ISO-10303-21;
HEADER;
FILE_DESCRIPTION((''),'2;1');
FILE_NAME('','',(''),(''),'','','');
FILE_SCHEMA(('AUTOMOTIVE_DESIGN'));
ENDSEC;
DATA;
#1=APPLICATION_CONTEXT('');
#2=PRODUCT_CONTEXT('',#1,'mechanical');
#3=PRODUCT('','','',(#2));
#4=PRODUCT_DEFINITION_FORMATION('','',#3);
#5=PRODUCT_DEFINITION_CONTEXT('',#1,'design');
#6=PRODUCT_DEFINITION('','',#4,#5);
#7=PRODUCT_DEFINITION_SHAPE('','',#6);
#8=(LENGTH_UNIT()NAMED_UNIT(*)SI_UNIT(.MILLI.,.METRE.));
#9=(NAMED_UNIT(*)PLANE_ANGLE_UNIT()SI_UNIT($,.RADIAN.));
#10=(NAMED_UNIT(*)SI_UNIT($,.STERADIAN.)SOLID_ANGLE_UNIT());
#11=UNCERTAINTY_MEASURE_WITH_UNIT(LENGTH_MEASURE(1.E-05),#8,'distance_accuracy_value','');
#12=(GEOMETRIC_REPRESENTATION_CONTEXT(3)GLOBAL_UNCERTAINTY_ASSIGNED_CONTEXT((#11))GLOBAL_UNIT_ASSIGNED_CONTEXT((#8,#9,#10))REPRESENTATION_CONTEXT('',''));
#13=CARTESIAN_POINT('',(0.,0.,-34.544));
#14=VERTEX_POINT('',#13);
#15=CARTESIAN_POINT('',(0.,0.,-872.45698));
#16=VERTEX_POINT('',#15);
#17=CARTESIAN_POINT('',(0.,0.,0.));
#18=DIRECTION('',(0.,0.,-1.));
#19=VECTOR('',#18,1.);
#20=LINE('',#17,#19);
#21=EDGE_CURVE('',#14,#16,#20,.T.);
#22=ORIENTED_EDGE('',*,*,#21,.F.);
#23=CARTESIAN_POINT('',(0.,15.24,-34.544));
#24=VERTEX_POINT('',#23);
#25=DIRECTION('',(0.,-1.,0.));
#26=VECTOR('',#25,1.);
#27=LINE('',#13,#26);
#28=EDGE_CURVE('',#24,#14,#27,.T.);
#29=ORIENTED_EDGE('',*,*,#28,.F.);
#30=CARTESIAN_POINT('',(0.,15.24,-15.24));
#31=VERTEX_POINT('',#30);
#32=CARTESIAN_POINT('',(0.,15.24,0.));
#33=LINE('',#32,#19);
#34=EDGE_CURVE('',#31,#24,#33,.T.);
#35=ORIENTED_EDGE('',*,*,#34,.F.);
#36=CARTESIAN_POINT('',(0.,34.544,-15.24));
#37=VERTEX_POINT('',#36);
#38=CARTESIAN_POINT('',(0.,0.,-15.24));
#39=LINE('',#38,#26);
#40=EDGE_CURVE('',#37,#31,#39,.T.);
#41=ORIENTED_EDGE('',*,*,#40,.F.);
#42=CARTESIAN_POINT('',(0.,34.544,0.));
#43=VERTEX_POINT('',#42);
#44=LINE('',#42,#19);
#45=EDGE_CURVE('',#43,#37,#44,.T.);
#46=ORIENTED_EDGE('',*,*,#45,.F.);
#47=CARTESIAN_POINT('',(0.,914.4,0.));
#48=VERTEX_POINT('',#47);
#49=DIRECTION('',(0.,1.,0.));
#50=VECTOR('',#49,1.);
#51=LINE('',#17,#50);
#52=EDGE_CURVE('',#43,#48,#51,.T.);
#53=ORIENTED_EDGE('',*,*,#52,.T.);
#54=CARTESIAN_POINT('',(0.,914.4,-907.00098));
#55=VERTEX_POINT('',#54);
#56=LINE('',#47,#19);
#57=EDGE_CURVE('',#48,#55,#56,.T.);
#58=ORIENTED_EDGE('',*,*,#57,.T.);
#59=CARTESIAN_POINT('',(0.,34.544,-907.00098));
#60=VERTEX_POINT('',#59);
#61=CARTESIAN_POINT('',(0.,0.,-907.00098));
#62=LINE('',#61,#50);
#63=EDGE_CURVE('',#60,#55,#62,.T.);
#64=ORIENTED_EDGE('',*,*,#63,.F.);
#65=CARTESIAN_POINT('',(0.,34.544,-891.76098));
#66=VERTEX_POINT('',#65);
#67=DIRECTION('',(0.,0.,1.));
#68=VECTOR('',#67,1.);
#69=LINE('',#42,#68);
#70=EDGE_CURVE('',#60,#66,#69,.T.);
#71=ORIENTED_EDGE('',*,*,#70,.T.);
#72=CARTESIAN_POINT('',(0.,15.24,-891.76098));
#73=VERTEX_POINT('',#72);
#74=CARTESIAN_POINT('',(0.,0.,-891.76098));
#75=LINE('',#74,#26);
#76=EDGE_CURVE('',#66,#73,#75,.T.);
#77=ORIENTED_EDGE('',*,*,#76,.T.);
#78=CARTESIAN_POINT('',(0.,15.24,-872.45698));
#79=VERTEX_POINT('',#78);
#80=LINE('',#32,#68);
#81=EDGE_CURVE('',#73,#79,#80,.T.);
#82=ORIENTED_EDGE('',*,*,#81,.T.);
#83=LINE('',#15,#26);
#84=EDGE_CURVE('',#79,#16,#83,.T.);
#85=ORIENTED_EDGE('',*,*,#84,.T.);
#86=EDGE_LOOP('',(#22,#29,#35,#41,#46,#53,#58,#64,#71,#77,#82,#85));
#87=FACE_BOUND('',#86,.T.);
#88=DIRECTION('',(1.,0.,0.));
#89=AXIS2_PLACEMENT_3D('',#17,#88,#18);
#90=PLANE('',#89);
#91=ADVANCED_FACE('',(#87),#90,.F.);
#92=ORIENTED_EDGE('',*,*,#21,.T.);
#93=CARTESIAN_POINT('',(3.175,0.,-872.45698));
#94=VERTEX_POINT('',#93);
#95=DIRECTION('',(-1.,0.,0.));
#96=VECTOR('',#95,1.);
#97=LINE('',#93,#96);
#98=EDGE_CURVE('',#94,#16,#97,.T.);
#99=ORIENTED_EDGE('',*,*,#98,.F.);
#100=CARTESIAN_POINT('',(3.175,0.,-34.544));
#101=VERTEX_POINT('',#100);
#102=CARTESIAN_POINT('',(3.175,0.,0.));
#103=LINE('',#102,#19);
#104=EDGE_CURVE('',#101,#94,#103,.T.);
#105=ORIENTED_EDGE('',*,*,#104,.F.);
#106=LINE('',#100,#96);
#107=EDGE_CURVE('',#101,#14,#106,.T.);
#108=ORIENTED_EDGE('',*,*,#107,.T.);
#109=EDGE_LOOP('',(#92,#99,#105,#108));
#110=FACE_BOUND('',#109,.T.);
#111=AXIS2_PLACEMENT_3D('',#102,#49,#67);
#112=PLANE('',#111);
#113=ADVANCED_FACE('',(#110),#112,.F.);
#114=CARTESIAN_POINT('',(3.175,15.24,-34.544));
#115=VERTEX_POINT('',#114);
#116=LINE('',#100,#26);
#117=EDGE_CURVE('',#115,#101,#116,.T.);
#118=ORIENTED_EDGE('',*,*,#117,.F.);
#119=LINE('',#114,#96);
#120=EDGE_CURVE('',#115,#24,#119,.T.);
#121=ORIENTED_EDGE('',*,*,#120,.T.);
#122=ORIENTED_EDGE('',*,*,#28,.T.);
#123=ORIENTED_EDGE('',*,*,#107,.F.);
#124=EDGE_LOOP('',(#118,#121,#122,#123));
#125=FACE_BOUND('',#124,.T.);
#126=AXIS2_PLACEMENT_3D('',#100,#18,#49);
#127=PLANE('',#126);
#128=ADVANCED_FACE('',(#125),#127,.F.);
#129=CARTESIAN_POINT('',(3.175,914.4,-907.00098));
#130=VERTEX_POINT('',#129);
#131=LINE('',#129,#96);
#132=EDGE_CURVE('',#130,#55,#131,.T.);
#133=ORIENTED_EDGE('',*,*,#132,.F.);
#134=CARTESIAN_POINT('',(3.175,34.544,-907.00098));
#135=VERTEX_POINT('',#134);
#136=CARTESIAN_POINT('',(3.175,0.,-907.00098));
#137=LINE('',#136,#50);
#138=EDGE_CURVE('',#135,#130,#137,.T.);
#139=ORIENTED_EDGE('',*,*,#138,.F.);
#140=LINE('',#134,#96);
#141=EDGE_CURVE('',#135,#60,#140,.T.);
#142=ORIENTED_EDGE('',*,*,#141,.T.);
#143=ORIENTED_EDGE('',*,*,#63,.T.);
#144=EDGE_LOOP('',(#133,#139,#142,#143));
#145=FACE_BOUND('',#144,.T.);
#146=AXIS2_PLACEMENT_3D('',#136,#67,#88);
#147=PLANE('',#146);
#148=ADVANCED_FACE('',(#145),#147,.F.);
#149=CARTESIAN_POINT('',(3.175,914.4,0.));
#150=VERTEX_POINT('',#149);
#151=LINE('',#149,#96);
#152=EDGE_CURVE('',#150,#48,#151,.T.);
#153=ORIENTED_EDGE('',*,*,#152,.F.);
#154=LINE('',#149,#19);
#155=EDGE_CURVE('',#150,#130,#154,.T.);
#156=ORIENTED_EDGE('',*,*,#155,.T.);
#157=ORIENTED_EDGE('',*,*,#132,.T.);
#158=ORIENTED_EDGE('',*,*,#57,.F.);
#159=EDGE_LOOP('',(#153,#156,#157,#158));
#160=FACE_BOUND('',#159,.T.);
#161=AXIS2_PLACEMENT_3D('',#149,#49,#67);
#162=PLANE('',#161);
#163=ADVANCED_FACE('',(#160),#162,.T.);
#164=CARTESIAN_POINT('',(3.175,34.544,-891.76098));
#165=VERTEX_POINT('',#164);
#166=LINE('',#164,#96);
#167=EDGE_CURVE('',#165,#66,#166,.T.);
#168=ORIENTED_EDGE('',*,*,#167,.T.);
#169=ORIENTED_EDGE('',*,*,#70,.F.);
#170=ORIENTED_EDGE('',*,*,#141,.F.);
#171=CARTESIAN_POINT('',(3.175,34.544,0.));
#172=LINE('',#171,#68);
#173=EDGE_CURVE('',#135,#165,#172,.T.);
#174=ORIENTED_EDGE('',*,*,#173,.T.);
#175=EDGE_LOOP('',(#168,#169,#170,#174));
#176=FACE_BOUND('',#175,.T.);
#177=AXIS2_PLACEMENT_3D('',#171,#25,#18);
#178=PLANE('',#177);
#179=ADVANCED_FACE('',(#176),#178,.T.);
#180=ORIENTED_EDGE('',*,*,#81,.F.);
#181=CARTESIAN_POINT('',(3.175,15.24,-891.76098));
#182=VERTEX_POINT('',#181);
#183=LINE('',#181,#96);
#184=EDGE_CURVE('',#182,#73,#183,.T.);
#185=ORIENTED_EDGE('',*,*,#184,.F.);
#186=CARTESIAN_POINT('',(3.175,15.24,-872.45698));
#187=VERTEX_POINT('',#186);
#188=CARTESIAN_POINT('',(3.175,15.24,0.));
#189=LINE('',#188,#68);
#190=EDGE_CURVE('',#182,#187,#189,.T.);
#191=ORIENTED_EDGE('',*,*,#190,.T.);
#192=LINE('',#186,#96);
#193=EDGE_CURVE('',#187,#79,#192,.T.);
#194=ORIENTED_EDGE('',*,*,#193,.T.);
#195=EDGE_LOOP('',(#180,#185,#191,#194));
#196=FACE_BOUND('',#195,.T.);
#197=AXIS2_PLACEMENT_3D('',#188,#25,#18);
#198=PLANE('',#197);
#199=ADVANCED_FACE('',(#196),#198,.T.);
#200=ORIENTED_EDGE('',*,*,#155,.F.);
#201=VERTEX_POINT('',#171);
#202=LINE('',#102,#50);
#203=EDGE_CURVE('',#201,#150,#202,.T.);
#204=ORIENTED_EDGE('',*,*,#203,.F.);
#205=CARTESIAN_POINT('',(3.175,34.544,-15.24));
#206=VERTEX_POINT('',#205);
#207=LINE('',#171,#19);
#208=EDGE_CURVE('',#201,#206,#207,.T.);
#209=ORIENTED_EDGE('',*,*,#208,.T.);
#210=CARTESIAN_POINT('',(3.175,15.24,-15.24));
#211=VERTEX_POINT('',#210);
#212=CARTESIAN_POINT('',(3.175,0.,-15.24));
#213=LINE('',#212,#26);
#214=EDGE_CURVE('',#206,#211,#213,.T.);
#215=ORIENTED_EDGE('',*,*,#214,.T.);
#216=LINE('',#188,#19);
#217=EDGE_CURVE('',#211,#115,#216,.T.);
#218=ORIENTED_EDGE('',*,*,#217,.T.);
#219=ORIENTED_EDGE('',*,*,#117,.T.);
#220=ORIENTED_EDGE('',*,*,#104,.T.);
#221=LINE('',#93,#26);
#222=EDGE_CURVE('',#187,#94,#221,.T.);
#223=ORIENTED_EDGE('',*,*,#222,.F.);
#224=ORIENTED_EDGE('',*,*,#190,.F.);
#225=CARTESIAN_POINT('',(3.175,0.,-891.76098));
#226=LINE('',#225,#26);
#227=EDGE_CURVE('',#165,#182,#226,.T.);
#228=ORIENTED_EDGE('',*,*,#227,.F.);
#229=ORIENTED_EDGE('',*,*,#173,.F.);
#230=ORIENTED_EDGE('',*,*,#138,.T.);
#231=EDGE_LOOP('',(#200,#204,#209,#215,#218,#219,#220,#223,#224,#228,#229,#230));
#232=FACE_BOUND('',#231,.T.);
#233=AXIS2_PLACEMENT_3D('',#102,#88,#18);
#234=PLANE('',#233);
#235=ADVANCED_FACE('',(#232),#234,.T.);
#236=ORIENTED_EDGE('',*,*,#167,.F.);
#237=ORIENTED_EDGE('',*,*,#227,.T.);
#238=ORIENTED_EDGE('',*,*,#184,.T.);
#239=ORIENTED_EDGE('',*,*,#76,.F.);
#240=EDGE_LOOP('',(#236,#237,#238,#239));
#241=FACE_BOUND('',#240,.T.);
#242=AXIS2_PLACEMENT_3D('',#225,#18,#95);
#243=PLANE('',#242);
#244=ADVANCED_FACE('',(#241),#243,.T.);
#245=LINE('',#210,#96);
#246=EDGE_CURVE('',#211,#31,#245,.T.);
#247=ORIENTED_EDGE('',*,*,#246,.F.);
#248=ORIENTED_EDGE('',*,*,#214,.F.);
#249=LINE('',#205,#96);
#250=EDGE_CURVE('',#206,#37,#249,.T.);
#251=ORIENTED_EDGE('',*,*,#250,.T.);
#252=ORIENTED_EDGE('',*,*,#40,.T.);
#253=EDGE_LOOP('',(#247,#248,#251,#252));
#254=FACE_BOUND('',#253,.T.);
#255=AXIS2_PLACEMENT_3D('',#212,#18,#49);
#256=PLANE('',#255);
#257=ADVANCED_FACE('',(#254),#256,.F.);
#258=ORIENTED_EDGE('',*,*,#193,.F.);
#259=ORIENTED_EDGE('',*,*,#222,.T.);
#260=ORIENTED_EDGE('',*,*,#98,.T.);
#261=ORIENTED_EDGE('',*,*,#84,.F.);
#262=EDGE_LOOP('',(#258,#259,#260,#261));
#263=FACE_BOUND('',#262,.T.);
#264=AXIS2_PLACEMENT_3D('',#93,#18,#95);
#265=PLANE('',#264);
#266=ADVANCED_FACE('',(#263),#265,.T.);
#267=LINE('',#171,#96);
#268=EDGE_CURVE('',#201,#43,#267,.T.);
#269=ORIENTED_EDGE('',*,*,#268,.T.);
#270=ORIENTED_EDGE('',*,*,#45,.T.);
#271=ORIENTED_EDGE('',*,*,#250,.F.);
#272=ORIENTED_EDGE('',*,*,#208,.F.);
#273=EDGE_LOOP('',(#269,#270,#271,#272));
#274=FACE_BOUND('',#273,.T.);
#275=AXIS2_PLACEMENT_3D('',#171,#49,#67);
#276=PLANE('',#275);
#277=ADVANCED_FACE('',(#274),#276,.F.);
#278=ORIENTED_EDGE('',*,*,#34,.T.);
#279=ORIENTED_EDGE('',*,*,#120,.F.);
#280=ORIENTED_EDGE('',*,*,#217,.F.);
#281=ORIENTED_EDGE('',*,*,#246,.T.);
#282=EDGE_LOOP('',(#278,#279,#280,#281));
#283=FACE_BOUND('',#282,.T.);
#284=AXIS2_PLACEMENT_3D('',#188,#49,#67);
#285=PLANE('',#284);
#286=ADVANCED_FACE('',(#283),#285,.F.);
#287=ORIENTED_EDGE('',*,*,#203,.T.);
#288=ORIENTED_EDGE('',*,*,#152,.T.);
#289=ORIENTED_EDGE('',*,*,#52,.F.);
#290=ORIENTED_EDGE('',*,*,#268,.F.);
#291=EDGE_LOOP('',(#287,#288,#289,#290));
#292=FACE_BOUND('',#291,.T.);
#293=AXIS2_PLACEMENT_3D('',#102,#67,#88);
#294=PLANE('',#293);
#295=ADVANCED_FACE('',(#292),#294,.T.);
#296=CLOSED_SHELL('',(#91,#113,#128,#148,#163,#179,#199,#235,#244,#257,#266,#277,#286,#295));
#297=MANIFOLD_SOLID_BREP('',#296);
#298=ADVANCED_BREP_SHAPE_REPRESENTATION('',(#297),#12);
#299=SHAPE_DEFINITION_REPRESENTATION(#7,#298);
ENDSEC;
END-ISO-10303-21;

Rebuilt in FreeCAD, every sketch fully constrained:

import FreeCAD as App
import Part
import Sketcher
from FreeCAD import Vector
Q = App.Units.Quantity


def add_polygon(sketch, points):
    """Adds a closed chain of lines whose ends are joined by coincident constraints."""
    first, n = sketch.GeometryCount, len(points)
    for a, b in zip(points, points[1:] + points[:1]):
        sketch.addGeometry(Part.LineSegment(App.Vector(*a, 0), App.Vector(*b, 0)), False)
    for i in range(n):
        sketch.addConstraint(Sketcher.Constraint("Coincident", first + i, 2, first + (i + 1) % n, 1))

doc = App.newDocument("Part")
params = doc.addObject("Spreadsheet::Sheet", "Params")
for row, (alias, value) in enumerate([
    ("sketch1_width", "0.6 in"),
    ("sketch1_width2", "34.64 in"),
    ("pad1_length", "0.125 in"),
], start=1):
    params.set(f"A{row}", alias)
    params.set(f"B{row}", "=" + value)
    params.setAlias(f"B{row}", alias)

body = doc.addObject("PartDesign::Body", "Body")

sketch1 = body.newObject("Sketcher::SketchObject", "Sketch")
sketch1.AttachmentSupport = (doc.getObject("YZ_Plane"), [""])
sketch1.MapMode = "FlatFace"
add_polygon(sketch1, [(35, -892), (35, -907), (914, -907), (914, 0), (35, 0), (35, -15), (15, -15), (15, -35), (0, -35), (0, -872), (15, -872), (15, -892)])
sketch1.addConstraint([
    Sketcher.Constraint("Vertical", 0),
    Sketcher.Constraint("Horizontal", 1),
    Sketcher.Constraint("Vertical", 2),
    Sketcher.Constraint("Horizontal", 3),
    Sketcher.Constraint("Vertical", 4),
    Sketcher.Constraint("Horizontal", 5),
    Sketcher.Constraint("Vertical", 6),
    Sketcher.Constraint("Horizontal", 7),
    Sketcher.Constraint("Vertical", 8),
    Sketcher.Constraint("Horizontal", 9),
    Sketcher.Constraint("Vertical", 10),
    Sketcher.Constraint("Horizontal", 11),
    Sketcher.Constraint("PointOnObject", 2, 2, -1),
    Sketcher.Constraint("PointOnObject", 7, 2, -2),
    Sketcher.Constraint("Vertical", 0, 2, 3, 2),
    Sketcher.Constraint("Vertical", 6, 2, 9, 2),
    Sketcher.Constraint("Equal", 9, 0),
    Sketcher.Constraint("Equal", 0, 4),
    Sketcher.Constraint("Equal", 11, 6),
    Sketcher.Constraint("Equal", 6, 10),
    Sketcher.Constraint("DistanceX", 7, 2, 7, 1, Q("0.6 in")),
    Sketcher.Constraint("DistanceX", -1, 1, 1, 2, Q("36 in")),
    Sketcher.Constraint("DistanceX", 1, 1, 1, 2, Q("34.64 in")),
    Sketcher.Constraint("DistanceY", 2, 1, 2, 2, Q("35.7087 in")),
])
sketch1.setExpression("Constraints[32]", "Params.sketch1_width")
sketch1.setExpression("Constraints[34]", "Params.sketch1_width2")
pad1 = body.newObject("PartDesign::Pad", "Pad")
pad1.Profile = sketch1
pad1.setExpression("Length", "Params.pad1_length")

doc.recompute()
